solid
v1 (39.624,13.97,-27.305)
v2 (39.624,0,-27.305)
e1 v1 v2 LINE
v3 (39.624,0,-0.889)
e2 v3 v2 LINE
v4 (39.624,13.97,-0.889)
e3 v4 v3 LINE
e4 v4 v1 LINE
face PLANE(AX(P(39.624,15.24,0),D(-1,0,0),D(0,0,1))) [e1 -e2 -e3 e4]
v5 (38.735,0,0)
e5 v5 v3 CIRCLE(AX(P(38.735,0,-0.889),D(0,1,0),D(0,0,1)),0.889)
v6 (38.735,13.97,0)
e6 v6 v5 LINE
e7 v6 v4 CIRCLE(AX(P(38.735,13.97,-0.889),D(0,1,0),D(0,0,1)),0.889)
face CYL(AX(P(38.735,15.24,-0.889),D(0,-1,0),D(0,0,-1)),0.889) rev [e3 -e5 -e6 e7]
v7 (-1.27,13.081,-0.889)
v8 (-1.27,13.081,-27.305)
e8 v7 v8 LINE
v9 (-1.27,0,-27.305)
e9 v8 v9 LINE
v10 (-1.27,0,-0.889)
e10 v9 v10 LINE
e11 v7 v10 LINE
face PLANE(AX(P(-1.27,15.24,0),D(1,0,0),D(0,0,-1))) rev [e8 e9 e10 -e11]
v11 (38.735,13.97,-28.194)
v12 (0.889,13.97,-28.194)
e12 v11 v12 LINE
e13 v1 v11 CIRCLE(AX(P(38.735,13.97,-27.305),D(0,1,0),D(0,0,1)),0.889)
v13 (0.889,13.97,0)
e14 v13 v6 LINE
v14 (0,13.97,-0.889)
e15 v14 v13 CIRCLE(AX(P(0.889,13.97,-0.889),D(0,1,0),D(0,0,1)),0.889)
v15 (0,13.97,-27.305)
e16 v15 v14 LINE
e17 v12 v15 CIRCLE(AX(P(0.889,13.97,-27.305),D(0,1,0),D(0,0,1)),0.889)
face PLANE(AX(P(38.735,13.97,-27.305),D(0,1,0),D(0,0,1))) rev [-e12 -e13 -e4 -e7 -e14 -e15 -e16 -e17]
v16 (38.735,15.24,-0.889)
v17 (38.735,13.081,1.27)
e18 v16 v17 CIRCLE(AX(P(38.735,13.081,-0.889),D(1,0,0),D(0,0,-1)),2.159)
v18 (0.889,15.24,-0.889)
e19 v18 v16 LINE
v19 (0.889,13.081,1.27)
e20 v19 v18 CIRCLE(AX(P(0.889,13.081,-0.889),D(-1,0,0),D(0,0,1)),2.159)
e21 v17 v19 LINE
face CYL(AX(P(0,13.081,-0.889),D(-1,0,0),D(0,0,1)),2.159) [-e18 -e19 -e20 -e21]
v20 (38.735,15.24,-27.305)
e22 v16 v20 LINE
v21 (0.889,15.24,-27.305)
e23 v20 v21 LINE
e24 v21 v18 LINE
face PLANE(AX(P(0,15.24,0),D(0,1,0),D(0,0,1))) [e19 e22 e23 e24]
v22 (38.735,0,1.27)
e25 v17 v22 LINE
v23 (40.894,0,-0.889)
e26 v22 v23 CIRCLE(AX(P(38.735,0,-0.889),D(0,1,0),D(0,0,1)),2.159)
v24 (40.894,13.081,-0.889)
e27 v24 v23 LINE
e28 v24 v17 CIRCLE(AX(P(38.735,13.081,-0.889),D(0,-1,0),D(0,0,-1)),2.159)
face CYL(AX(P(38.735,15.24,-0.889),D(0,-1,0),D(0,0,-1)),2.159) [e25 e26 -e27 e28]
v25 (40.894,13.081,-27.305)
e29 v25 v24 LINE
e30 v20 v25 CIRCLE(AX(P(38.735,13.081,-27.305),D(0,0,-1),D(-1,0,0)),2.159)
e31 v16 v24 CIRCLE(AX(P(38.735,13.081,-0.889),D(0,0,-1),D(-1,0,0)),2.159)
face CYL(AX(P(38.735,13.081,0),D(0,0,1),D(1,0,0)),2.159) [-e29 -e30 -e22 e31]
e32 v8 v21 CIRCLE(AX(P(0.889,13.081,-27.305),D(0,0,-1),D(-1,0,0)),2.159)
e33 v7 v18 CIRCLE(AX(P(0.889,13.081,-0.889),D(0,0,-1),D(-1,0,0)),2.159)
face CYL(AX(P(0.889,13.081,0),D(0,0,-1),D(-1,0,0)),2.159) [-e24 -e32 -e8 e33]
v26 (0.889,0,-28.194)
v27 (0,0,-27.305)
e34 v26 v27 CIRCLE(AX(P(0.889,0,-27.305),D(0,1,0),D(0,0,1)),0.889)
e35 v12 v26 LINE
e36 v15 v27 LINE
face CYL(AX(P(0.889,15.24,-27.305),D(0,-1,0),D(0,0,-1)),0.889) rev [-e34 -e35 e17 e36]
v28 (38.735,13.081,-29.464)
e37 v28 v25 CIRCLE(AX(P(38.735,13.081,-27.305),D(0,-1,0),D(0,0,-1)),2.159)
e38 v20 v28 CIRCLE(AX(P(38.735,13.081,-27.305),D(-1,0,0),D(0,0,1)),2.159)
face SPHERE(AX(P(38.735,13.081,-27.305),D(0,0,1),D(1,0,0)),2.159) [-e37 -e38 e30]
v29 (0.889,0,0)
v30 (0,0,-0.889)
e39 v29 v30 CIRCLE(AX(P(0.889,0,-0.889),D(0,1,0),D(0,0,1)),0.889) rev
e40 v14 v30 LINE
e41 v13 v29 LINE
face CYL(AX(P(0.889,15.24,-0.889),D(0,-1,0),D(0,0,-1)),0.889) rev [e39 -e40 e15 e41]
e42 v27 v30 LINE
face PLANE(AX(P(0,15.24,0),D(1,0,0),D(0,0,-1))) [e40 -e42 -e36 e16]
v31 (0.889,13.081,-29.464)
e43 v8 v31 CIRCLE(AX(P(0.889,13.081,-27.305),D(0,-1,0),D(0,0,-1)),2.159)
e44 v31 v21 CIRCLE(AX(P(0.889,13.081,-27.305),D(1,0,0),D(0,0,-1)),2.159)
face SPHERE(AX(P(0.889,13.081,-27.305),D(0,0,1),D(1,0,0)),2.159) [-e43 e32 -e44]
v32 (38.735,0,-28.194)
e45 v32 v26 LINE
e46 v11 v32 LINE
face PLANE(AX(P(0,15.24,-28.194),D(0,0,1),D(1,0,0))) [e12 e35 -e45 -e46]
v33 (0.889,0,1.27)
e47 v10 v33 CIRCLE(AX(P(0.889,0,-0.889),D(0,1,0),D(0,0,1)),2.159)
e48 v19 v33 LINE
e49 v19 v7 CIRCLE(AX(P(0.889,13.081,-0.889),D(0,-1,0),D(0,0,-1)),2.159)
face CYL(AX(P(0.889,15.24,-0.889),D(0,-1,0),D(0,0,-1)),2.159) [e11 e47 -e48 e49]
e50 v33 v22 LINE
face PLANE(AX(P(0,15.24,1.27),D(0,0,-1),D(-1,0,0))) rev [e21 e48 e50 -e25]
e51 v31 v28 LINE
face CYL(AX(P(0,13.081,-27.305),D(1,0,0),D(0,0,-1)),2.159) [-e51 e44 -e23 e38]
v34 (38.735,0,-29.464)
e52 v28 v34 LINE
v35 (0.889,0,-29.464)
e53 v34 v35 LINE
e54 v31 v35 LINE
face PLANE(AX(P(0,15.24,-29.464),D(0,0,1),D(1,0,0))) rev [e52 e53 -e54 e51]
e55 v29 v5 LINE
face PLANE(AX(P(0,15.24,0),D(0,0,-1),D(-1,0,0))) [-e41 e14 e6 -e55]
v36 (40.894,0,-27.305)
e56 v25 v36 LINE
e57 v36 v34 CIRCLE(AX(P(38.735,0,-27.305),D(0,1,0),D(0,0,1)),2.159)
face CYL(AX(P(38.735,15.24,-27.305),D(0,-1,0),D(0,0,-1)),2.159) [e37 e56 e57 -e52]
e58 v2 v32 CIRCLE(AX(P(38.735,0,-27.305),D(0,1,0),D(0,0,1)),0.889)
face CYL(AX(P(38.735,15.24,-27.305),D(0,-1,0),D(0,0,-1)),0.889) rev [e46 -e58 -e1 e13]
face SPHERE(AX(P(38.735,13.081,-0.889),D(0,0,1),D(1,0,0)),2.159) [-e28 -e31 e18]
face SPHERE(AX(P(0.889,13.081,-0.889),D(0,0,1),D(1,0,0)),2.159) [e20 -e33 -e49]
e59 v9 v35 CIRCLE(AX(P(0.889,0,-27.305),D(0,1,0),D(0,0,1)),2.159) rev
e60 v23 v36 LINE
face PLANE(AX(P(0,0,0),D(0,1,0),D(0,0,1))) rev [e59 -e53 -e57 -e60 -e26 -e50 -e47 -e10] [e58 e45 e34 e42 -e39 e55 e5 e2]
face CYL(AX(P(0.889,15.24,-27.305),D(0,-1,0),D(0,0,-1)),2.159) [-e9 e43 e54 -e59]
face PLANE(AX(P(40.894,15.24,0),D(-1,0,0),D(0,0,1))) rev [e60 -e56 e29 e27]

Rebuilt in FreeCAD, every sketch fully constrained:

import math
import FreeCAD as App
import Part
import Sketcher
from FreeCAD import Vector
Q = App.Units.Quantity


def edges_at(feature, points):
    """Names of the edges that pass closest to the given points."""
    edges = feature.Shape.Edges
    near = lambda p: min(range(len(edges)), key=lambda i: edges[i].distToShape(Part.Vertex(*p))[0])
    return sorted({f"Edge{near(p) + 1}" for p in points})

doc = App.newDocument("Part")
body = doc.addObject("PartDesign::Body", "Body")

sketch1 = body.newObject("Sketcher::SketchObject", "Sketch")
sketch1.AttachmentSupport = (doc.getObject("XZ_Plane"), [""])
sketch1.MapMode = "FlatFace"
sketch1.addGeometry(Part.ArcOfCircle(Part.Circle(Vector(0.9, -27.3, 0), Vector(0, 0, 1), 2.2), math.radians(180), math.radians(270)), False)
sketch1.addGeometry(Part.LineSegment(Vector(-1.3, -27.3, 0), Vector(-1.3, -0.9, 0)), False)
sketch1.addGeometry(Part.ArcOfCircle(Part.Circle(Vector(0.9, -0.9, 0), Vector(0, 0, 1), 2.2), math.radians(90), math.radians(180)), False)
sketch1.addGeometry(Part.LineSegment(Vector(0.9, 1.3, 0), Vector(38.7, 1.3, 0)), False)
sketch1.addGeometry(Part.ArcOfCircle(Part.Circle(Vector(38.7, -0.9, 0), Vector(0, 0, 1), 2.2), math.radians(0), math.radians(90)), False)
sketch1.addGeometry(Part.LineSegment(Vector(40.9, -0.9, 0), Vector(40.9, -27.3, 0)), False)
sketch1.addGeometry(Part.ArcOfCircle(Part.Circle(Vector(38.7, -27.3, 0), Vector(0, 0, 1), 2.2), math.radians(-90), math.radians(0)), False)
sketch1.addGeometry(Part.LineSegment(Vector(38.7, -29.5, 0), Vector(0.9, -29.5, 0)), False)
sketch1.addGeometry(Part.LineSegment(Vector(0.9, -28.2, 0), Vector(38.7, -28.2, 0)), False)
sketch1.addGeometry(Part.ArcOfCircle(Part.Circle(Vector(38.7, -27.3, 0), Vector(0, 0, 1), 0.9), math.radians(-90), math.radians(0)), False)
sketch1.addGeometry(Part.LineSegment(Vector(39.6, -27.3, 0), Vector(39.6, -0.9, 0)), False)
sketch1.addGeometry(Part.ArcOfCircle(Part.Circle(Vector(38.7, -0.9, 0), Vector(0, 0, 1), 0.9), math.radians(0), math.radians(90)), False)
sketch1.addGeometry(Part.LineSegment(Vector(38.7, 0, 0), Vector(0.9, 0, 0)), False)
sketch1.addGeometry(Part.ArcOfCircle(Part.Circle(Vector(0.9, -0.9, 0), Vector(0, 0, 1), 0.9), math.radians(90), math.radians(180)), False)
sketch1.addGeometry(Part.LineSegment(Vector(0, -0.9, 0), Vector(0, -27.3, 0)), False)
sketch1.addGeometry(Part.ArcOfCircle(Part.Circle(Vector(0.9, -27.3, 0), Vector(0, 0, 1), 0.9), math.radians(-180), math.radians(-90)), False)
sketch1.addConstraint(Sketcher.Constraint("Tangent", 0, 1, 1, 1))
sketch1.addConstraint(Sketcher.Constraint("Tangent", 1, 2, 2, 2))
sketch1.addConstraint(Sketcher.Constraint("Tangent", 2, 1, 3, 1))
sketch1.addConstraint(Sketcher.Constraint("Tangent", 3, 2, 4, 2))
sketch1.addConstraint(Sketcher.Constraint("Tangent", 4, 1, 5, 1))
sketch1.addConstraint(Sketcher.Constraint("Tangent", 5, 2, 6, 2))
sketch1.addConstraint(Sketcher.Constraint("Tangent", 6, 1, 7, 1))
sketch1.addConstraint(Sketcher.Constraint("Tangent", 7, 2, 0, 2))
sketch1.addConstraint(Sketcher.Constraint("Tangent", 8, 2, 9, 1))
sketch1.addConstraint(Sketcher.Constraint("Tangent", 9, 2, 10, 1))
sketch1.addConstraint(Sketcher.Constraint("Tangent", 10, 2, 11, 1))
sketch1.addConstraint(Sketcher.Constraint("Tangent", 11, 2, 12, 1))
sketch1.addConstraint(Sketcher.Constraint("Tangent", 12, 2, 13, 1))
sketch1.addConstraint(Sketcher.Constraint("Tangent", 13, 2, 14, 1))
sketch1.addConstraint(Sketcher.Constraint("Tangent", 14, 2, 15, 1))
sketch1.addConstraint(Sketcher.Constraint("Tangent", 15, 2, 8, 1))
sketch1.addConstraint(Sketcher.Constraint("Vertical", 1))
sketch1.addConstraint(Sketcher.Constraint("Horizontal", 3))
sketch1.addConstraint(Sketcher.Constraint("Vertical", 5))
sketch1.addConstraint(Sketcher.Constraint("Horizontal", 7))
sketch1.addConstraint(Sketcher.Constraint("Horizontal", 8))
sketch1.addConstraint(Sketcher.Constraint("Vertical", 10))
sketch1.addConstraint(Sketcher.Constraint("Horizontal", 12))
sketch1.addConstraint(Sketcher.Constraint("Vertical", 14))
sketch1.addConstraint(Sketcher.Constraint("Coincident", 9, 3, 6, 3))
sketch1.addConstraint(Sketcher.Constraint("Coincident", 11, 3, 4, 3))
sketch1.addConstraint(Sketcher.Constraint("Coincident", 13, 3, 2, 3))
sketch1.addConstraint(Sketcher.Constraint("Equal", 0, 2))
sketch1.addConstraint(Sketcher.Constraint("Equal", 2, 4))
sketch1.addConstraint(Sketcher.Constraint("Equal", 4, 6))
sketch1.addConstraint(Sketcher.Constraint("Equal", 13, 15))
sketch1.addConstraint(Sketcher.Constraint("PointOnObject", 11, 2, -1))
sketch1.addConstraint(Sketcher.Constraint("PointOnObject", 13, 2, -2))
sketch1.addConstraint(Sketcher.Constraint("Radius", 0, Q("0.085 in")))
sketch1.addConstraint(Sketcher.Constraint("Radius", 9, Q("0.035 in")))
sketch1.addConstraint(Sketcher.Constraint("DistanceX", 3, 1, 3, 2, Q("1.49 in")))
sketch1.addConstraint(Sketcher.Constraint("DistanceY", 1, 1, 1, 2, Q("1.04 in")))
pad1 = body.newObject("PartDesign::Pad", "Pad")
pad1.Profile = sketch1
pad1.Length = Q("0.6 in")
pad1.Reversed = True

sketch2 = body.newObject("Sketcher::SketchObject", "Sketch001")
sketch2.AttachmentSupport = (doc.getObject("XZ_Plane"), [""])
sketch2.MapMode = "FlatFace"
sketch2.AttachmentOffset = App.Placement(Vector(0, 0, -0.55 * 25.4), App.Rotation())
sketch2.addGeometry(Part.LineSegment(Vector(38.7, -28.2, 0), Vector(0.9, -28.2, 0)), False)
sketch2.addGeometry(Part.ArcOfCircle(Part.Circle(Vector(0.9, -27.3, 0), Vector(0, 0, 1), 0.9), math.radians(-180), math.radians(-90)), False)
sketch2.addGeometry(Part.LineSegment(Vector(0, -27.3, 0), Vector(0, -0.9, 0)), False)
sketch2.addGeometry(Part.ArcOfCircle(Part.Circle(Vector(0.9, -0.9, 0), Vector(0, 0, 1), 0.9), math.radians(90), math.radians(180)), False)
sketch2.addGeometry(Part.LineSegment(Vector(0.9, 0, 0), Vector(38.7, 0, 0)), False)
sketch2.addGeometry(Part.ArcOfCircle(Part.Circle(Vector(38.7, -0.9, 0), Vector(0, 0, 1), 0.9), math.radians(0), math.radians(90)), False)
sketch2.addGeometry(Part.LineSegment(Vector(39.6, -0.9, 0), Vector(39.6, -27.3, 0)), False)
sketch2.addGeometry(Part.ArcOfCircle(Part.Circle(Vector(38.7, -27.3, 0), Vector(0, 0, 1), 0.9), math.radians(-90), math.radians(0)), False)
sketch2.addConstraint(Sketcher.Constraint("Tangent", 0, 2, 1, 2))
sketch2.addConstraint(Sketcher.Constraint("Tangent", 1, 1, 2, 1))
sketch2.addConstraint(Sketcher.Constraint("Tangent", 2, 2, 3, 2))
sketch2.addConstraint(Sketcher.Constraint("Tangent", 3, 1, 4, 1))
sketch2.addConstraint(Sketcher.Constraint("Tangent", 4, 2, 5, 2))
sketch2.addConstraint(Sketcher.Constraint("Tangent", 5, 1, 6, 1))
sketch2.addConstraint(Sketcher.Constraint("Tangent", 6, 2, 7, 2))
sketch2.addConstraint(Sketcher.Constraint("Tangent", 7, 1, 0, 1))
sketch2.addConstraint(Sketcher.Constraint("Horizontal", 0))
sketch2.addConstraint(Sketcher.Constraint("Vertical", 2))
sketch2.addConstraint(Sketcher.Constraint("Horizontal", 4))
sketch2.addConstraint(Sketcher.Constraint("Vertical", 6))
sketch2.addConstraint(Sketcher.Constraint("Equal", 1, 3))
sketch2.addConstraint(Sketcher.Constraint("Equal", 3, 5))
sketch2.addConstraint(Sketcher.Constraint("Equal", 5, 7))
sketch2.addConstraint(Sketcher.Constraint("PointOnObject", 1, 1, -2))
sketch2.addConstraint(Sketcher.Constraint("PointOnObject", 3, 1, -1))
sketch2.addConstraint(Sketcher.Constraint("Radius", 1, Q("0.035 in")))
sketch2.addConstraint(Sketcher.Constraint("DistanceX", 0, 2, 0, 1, Q("1.49 in")))
sketch2.addConstraint(Sketcher.Constraint("DistanceY", 2, 1, 2, 2, Q("1.04 in")))
pad2 = body.newObject("PartDesign::Pad", "Pad001")
pad2.Profile = sketch2
pad2.Length = Q("0.05 in")
pad2.Reversed = True
doc.recompute()

fillet = body.newObject("PartDesign::Fillet", "Fillet")
fillet.Base = (pad2, edges_at(pad2, [
    (-1.27, 15.24, -14.097),
    (-0.638, 15.24, 0.638),
    (19.812, 15.24, 1.27),
    (40.262, 15.24, 0.638),
    (40.894, 15.24, -14.097),
    (40.262, 15.24, -28.832),
    (19.812, 15.24, -29.464),
    (-0.638, 15.24, -28.832),
]))
fillet.Radius = Q("0.085 in")

doc.recompute()
